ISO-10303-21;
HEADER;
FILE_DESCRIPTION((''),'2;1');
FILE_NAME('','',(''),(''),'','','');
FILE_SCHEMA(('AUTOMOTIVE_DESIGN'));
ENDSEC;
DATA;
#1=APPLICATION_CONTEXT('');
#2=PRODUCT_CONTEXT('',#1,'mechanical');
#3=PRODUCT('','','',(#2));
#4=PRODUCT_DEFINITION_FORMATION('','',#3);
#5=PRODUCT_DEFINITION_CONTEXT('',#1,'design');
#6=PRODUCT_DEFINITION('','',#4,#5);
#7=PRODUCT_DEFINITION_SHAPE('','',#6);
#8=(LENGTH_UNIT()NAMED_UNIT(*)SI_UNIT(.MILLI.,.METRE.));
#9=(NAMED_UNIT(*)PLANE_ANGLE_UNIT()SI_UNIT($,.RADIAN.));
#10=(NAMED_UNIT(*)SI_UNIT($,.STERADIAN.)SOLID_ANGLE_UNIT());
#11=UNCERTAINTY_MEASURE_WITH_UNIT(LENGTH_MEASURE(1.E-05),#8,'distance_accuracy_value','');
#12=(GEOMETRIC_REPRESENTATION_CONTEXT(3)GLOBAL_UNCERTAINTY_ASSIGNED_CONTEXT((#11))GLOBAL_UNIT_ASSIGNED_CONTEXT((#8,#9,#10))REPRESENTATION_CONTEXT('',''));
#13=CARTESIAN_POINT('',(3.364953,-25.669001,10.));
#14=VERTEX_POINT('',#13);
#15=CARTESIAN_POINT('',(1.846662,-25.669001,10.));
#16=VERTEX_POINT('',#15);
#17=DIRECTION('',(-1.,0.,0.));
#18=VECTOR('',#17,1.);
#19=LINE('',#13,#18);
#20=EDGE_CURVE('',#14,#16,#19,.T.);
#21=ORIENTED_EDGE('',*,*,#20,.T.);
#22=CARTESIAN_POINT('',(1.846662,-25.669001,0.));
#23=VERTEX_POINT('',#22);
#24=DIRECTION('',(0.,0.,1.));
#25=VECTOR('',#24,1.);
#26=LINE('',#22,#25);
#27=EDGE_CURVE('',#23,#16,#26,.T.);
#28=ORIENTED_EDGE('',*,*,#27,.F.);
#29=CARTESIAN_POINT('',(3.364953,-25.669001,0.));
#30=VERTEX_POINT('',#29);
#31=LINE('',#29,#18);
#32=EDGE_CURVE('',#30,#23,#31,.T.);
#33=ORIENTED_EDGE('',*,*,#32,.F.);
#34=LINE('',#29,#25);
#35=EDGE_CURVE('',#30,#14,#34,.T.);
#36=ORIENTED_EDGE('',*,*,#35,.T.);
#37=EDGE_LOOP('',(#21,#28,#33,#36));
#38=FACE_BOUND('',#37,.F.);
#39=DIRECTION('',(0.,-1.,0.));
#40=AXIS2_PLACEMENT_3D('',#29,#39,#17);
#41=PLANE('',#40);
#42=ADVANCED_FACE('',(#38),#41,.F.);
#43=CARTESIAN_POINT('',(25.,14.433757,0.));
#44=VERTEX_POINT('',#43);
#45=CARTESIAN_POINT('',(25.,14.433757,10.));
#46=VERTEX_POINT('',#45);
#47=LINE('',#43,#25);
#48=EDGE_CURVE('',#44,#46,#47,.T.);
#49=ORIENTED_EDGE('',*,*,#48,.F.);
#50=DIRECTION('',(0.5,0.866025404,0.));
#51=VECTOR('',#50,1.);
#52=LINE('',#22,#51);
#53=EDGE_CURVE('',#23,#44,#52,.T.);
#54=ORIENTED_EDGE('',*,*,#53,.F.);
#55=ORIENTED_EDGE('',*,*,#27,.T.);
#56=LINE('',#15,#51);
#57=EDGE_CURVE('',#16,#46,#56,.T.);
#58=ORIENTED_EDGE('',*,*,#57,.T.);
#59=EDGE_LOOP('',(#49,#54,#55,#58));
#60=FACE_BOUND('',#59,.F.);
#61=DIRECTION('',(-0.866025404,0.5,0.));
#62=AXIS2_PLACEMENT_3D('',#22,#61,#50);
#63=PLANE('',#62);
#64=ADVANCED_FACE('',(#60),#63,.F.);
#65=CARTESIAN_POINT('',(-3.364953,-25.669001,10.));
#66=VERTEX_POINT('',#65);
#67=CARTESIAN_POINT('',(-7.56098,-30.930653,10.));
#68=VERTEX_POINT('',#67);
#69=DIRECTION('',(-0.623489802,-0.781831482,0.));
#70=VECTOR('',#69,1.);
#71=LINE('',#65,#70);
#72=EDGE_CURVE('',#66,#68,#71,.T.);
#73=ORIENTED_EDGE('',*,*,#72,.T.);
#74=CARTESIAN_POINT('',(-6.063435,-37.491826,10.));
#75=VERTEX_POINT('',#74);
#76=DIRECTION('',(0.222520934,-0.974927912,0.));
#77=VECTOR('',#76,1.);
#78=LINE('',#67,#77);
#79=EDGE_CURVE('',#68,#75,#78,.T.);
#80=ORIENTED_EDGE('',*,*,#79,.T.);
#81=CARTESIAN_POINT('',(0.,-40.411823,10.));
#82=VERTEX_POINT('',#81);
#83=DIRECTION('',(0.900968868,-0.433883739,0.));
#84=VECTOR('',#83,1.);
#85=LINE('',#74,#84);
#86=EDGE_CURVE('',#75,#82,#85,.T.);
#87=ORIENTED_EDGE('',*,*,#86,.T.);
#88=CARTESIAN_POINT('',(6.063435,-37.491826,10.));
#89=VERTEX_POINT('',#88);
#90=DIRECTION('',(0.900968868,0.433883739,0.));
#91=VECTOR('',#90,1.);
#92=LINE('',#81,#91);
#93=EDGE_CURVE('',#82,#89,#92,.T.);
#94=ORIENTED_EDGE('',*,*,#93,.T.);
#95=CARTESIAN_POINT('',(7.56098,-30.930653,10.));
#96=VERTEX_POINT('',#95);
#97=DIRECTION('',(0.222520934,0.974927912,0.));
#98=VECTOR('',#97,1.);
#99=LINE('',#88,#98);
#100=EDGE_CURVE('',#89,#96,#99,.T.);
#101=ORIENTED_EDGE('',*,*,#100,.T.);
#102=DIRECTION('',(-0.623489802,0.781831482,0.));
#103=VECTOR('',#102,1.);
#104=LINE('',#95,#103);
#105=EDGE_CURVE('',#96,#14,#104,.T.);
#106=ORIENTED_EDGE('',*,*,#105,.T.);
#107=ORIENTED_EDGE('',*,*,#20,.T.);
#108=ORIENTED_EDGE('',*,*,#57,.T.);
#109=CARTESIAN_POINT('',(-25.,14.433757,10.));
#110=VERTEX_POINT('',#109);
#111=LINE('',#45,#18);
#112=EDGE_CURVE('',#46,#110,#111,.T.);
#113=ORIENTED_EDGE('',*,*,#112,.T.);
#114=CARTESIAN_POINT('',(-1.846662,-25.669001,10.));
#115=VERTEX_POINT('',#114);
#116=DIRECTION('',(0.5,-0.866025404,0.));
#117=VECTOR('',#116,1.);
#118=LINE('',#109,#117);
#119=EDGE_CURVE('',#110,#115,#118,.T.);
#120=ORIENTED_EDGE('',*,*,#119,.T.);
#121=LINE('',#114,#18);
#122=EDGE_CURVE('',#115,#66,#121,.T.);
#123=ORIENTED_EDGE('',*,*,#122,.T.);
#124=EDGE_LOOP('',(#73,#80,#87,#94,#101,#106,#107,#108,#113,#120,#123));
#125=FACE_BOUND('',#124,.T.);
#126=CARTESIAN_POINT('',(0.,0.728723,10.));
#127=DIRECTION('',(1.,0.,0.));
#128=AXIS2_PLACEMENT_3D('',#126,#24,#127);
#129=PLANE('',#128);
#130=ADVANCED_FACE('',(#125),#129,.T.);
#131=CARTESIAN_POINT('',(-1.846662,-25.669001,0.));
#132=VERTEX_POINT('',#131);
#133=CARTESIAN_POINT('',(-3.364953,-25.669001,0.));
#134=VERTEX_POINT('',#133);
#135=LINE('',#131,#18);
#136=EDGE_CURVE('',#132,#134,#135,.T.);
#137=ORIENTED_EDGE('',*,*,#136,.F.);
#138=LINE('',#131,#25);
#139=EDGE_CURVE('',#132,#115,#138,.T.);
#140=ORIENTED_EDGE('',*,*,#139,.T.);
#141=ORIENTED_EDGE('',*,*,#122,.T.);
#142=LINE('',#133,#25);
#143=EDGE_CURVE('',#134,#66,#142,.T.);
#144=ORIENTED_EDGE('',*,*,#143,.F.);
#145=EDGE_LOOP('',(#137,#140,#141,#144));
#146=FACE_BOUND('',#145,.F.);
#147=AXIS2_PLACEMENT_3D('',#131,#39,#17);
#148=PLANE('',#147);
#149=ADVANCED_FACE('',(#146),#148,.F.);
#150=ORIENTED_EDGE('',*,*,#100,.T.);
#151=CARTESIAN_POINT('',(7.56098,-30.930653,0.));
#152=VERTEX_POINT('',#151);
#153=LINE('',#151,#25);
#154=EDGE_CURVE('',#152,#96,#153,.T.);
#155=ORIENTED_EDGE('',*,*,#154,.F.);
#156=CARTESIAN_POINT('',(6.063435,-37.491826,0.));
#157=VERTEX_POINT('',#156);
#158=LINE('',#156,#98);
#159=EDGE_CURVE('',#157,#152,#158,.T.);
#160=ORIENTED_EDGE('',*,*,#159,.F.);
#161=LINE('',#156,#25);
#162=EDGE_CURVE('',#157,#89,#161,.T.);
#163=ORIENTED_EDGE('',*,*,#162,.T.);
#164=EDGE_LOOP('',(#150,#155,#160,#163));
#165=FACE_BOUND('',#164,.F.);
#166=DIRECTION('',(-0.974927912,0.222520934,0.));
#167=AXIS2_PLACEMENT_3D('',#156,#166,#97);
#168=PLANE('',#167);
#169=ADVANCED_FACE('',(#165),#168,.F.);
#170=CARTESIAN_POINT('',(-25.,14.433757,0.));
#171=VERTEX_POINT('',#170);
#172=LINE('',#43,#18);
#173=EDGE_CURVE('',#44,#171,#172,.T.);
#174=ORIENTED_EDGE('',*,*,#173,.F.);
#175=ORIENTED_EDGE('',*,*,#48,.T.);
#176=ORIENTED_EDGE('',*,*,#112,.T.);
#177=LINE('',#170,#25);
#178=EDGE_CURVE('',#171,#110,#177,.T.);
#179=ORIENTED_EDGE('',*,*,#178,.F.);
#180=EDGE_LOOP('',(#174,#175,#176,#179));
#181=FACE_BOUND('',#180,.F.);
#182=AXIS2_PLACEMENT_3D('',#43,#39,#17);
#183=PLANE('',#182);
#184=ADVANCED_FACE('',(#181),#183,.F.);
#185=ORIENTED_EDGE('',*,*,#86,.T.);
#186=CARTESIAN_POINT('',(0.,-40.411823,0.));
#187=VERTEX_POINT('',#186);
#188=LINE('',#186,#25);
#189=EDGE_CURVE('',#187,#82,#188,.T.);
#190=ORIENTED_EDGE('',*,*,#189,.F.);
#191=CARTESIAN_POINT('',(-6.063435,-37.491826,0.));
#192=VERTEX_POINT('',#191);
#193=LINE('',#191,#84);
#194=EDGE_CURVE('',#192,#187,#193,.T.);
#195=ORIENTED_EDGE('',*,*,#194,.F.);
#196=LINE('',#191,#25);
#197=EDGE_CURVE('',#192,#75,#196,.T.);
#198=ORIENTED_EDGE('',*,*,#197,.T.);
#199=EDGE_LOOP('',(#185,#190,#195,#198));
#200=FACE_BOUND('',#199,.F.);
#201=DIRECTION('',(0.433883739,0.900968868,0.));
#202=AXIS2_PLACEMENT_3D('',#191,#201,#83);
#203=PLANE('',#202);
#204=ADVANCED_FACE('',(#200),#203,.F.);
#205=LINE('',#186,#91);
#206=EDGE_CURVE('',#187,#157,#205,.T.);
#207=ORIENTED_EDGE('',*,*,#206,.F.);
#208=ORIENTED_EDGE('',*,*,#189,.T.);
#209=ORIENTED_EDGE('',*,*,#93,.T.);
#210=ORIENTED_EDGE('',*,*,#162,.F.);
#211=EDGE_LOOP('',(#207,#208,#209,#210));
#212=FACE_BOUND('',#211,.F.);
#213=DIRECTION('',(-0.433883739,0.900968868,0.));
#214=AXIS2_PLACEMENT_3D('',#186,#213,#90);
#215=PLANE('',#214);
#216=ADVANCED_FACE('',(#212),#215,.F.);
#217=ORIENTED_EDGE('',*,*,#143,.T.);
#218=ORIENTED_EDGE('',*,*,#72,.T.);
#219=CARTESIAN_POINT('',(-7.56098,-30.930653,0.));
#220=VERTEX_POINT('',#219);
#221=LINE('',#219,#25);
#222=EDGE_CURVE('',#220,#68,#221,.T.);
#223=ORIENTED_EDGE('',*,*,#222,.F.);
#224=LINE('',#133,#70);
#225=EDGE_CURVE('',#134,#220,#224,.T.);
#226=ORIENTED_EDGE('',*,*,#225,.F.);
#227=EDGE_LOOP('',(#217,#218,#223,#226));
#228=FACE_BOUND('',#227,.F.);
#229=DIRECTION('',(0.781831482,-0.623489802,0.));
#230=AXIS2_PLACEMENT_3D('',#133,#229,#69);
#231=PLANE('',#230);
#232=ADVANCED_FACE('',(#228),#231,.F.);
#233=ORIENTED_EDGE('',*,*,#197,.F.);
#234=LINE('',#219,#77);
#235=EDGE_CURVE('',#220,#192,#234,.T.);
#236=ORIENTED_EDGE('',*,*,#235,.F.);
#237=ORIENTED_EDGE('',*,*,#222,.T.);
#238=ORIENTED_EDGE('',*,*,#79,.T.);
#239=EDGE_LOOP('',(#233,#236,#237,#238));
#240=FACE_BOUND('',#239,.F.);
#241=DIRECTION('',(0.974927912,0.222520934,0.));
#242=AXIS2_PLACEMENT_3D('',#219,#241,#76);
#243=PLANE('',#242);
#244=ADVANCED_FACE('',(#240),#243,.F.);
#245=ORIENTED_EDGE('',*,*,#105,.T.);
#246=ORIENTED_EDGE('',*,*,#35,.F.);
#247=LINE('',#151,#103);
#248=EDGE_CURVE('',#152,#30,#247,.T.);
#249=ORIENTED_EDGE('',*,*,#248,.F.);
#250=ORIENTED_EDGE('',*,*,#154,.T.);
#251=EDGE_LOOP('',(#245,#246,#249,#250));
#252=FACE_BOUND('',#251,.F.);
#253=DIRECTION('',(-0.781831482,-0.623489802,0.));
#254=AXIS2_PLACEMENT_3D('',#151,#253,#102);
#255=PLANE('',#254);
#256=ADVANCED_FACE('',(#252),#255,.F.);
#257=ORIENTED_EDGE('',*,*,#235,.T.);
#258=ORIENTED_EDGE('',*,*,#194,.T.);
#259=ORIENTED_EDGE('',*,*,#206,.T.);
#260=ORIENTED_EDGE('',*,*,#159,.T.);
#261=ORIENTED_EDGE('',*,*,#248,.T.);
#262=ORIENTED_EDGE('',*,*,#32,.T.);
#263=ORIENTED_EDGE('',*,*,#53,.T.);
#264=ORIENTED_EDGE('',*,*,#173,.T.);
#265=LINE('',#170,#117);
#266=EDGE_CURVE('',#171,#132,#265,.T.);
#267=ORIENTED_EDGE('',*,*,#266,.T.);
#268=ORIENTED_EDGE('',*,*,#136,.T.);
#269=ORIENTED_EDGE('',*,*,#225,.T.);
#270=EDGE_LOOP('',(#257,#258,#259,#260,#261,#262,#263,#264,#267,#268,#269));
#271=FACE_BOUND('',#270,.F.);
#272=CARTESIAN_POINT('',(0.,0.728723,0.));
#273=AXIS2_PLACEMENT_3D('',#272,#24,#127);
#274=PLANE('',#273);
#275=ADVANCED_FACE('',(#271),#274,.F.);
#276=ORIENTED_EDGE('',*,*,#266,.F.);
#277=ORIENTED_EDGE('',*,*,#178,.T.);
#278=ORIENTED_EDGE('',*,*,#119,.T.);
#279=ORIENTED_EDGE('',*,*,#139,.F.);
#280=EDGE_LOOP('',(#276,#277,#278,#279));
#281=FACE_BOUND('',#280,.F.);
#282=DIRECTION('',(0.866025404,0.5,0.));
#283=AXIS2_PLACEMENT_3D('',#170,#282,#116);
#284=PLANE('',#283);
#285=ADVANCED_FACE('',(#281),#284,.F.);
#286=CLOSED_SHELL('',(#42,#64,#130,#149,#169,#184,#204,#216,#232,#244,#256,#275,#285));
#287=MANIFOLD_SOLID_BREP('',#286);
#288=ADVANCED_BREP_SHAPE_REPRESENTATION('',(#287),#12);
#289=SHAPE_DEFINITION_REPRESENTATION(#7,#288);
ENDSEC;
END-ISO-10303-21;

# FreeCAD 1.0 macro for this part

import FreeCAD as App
import Part
import Sketcher

V = App.Vector
Q = App.Units.Quantity


def add_polygon(sketch, points):
    """Adds a closed chain of lines whose ends are joined by coincident constraints."""
    first, n = sketch.GeometryCount, len(points)
    for a, b in zip(points, points[1:] + points[:1]):
        sketch.addGeometry(Part.LineSegment(App.Vector(*a, 0), App.Vector(*b, 0)), False)
    for i in range(n):
        sketch.addConstraint(Sketcher.Constraint("Coincident", first + i, 2, first + (i + 1) % n, 1))

doc = App.newDocument("Part")
body = doc.addObject("PartDesign::Body", "Body")

sketch1 = doc.addObject("Sketcher::SketchObject", "Sketch")
body.addObject(sketch1)
sketch1.AttachmentSupport = (doc.XY_Plane, [""])
sketch1.MapMode = "FlatFace"
add_polygon(sketch1, [(1.846662, -25.669001), (25, 14.433757), (-25, 14.433757), (-1.846662, -25.669001), (-3.364953, -25.669001), (-7.56098, -30.930653), (-6.063435, -37.491826), (0, -40.411823), (6.063435, -37.491826), (7.56098, -30.930653), (3.364953, -25.669001)])
sketch1.addConstraint(Sketcher.Constraint("Horizontal", 1))
sketch1.addConstraint(Sketcher.Constraint("Horizontal", 3))
sketch1.addConstraint(Sketcher.Constraint("Horizontal", 10))
sketch1.addConstraint(Sketcher.Constraint("Symmetric", 5, 2, 7, 2, -2))
sketch1.addConstraint(Sketcher.Constraint("Symmetric", 4, 2, 8, 2, -2))
sketch1.addConstraint(Sketcher.Constraint("Symmetric", 3, 2, 9, 2, -2))
sketch1.addConstraint(Sketcher.Constraint("PointOnObject", 6, 2, -2))
sketch1.addConstraint(Sketcher.Constraint("Equal", 3, 10))
sketch1.addConstraint(Sketcher.Constraint("Equal", 0, 2))
sketch1.addConstraint(Sketcher.Constraint("Equal", 4, 5))
sketch1.addConstraint(Sketcher.Constraint("Equal", 5, 6))
sketch1.addConstraint(Sketcher.Constraint("DistanceX", 1, 2, 1, 1, 50.0))
sketch1.addConstraint(Sketcher.Constraint("Angle", 0, Q("60 deg")))
sketch1.addConstraint(Sketcher.Constraint("DistanceY", 2, 2, -1, 1, 25.669001))
sketch1.addConstraint(Sketcher.Constraint("DistanceX", 3, 2, 3, 1, 1.518291))
sketch1.addConstraint(Sketcher.Constraint("DistanceX", 2, 2, -1, 1, 1.846662))
sketch1.addConstraint(Sketcher.Constraint("DistanceX", 4, 2, -1, 1, 7.56098))
sketch1.addConstraint(Sketcher.Constraint("DistanceY", 4, 2, 3, 2, 5.261652))
sketch1.addConstraint(Sketcher.Constraint("DistanceY", 6, 2, 4, 2, 9.481169))
pad1 = doc.addObject("PartDesign::Pad", "Pad")
body.addObject(pad1)
pad1.Profile = sketch1
pad1.Length = 10

doc.recompute()
